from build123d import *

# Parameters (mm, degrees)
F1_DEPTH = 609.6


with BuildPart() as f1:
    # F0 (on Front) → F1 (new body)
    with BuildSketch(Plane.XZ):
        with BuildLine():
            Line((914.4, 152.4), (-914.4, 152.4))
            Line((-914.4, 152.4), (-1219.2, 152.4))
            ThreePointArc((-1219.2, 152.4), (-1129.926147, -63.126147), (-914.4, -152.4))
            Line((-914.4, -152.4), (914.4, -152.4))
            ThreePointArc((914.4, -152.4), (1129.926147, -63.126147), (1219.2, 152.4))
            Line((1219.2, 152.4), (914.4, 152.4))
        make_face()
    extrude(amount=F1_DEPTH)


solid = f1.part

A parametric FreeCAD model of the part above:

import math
import FreeCAD as App
import Part
import Sketcher

V = App.Vector
Q = App.Units.Quantity

doc = App.newDocument("Part")
body = doc.addObject("PartDesign::Body", "Body")

# Sketch on XZ plane
sketch1 = doc.addObject("Sketcher::SketchObject", "Sketch")
body.addObject(sketch1)
sketch1.AttachmentSupport = (doc.XZ_Plane, [""])
sketch1.MapMode = "FlatFace"
sketch1.addGeometry(Part.ArcOfCircle(Part.Circle(V(-914, 152, 0), V(0, 0, 1), 305), math.radians(180), math.radians(270)), False)
sketch1.addGeometry(Part.LineSegment(V(-914, -152, 0), V(914, -152, 0)), False)
sketch1.addGeometry(Part.ArcOfCircle(Part.Circle(V(914, 152, 0), V(0, 0, 1), 305), math.radians(-90), math.radians(0)), False)
sketch1.addGeometry(Part.LineSegment(V(1219, 152, 0), V(-1219, 152, 0)), False)
sketch1.addConstraint(Sketcher.Constraint("Tangent", 0, 2, 1, 1))
sketch1.addConstraint(Sketcher.Constraint("Tangent", 1, 2, 2, 1))
sketch1.addConstraint(Sketcher.Constraint("Coincident", 2, 2, 3, 1))
sketch1.addConstraint(Sketcher.Constraint("Coincident", 3, 2, 0, 1))
sketch1.addConstraint(Sketcher.Constraint("Horizontal", 1))
sketch1.addConstraint(Sketcher.Constraint("Horizontal", 3))
sketch1.addConstraint(Sketcher.Constraint("Equal", 0, 2))
sketch1.addConstraint(Sketcher.Constraint("Horizontal", 0, 3, 2, 2))
sketch1.addConstraint(Sketcher.Constraint("Radius", 0, Q("12 in")))
sketch1.addConstraint(Sketcher.Constraint("DistanceX", 1, 1, 1, 2, Q("72 in")))
sketch1.addConstraint(Sketcher.Constraint("DistanceX", 0, 3, -1, 1, Q("36 in")))
sketch1.addConstraint(Sketcher.Constraint("DistanceY", -1, 1, 0, 3, Q("6 in")))
pad1 = doc.addObject("PartDesign::Pad", "Pad")
body.addObject(pad1)
pad1.Profile = sketch1
pad1.Length = Q("24 in")

doc.recompute()
